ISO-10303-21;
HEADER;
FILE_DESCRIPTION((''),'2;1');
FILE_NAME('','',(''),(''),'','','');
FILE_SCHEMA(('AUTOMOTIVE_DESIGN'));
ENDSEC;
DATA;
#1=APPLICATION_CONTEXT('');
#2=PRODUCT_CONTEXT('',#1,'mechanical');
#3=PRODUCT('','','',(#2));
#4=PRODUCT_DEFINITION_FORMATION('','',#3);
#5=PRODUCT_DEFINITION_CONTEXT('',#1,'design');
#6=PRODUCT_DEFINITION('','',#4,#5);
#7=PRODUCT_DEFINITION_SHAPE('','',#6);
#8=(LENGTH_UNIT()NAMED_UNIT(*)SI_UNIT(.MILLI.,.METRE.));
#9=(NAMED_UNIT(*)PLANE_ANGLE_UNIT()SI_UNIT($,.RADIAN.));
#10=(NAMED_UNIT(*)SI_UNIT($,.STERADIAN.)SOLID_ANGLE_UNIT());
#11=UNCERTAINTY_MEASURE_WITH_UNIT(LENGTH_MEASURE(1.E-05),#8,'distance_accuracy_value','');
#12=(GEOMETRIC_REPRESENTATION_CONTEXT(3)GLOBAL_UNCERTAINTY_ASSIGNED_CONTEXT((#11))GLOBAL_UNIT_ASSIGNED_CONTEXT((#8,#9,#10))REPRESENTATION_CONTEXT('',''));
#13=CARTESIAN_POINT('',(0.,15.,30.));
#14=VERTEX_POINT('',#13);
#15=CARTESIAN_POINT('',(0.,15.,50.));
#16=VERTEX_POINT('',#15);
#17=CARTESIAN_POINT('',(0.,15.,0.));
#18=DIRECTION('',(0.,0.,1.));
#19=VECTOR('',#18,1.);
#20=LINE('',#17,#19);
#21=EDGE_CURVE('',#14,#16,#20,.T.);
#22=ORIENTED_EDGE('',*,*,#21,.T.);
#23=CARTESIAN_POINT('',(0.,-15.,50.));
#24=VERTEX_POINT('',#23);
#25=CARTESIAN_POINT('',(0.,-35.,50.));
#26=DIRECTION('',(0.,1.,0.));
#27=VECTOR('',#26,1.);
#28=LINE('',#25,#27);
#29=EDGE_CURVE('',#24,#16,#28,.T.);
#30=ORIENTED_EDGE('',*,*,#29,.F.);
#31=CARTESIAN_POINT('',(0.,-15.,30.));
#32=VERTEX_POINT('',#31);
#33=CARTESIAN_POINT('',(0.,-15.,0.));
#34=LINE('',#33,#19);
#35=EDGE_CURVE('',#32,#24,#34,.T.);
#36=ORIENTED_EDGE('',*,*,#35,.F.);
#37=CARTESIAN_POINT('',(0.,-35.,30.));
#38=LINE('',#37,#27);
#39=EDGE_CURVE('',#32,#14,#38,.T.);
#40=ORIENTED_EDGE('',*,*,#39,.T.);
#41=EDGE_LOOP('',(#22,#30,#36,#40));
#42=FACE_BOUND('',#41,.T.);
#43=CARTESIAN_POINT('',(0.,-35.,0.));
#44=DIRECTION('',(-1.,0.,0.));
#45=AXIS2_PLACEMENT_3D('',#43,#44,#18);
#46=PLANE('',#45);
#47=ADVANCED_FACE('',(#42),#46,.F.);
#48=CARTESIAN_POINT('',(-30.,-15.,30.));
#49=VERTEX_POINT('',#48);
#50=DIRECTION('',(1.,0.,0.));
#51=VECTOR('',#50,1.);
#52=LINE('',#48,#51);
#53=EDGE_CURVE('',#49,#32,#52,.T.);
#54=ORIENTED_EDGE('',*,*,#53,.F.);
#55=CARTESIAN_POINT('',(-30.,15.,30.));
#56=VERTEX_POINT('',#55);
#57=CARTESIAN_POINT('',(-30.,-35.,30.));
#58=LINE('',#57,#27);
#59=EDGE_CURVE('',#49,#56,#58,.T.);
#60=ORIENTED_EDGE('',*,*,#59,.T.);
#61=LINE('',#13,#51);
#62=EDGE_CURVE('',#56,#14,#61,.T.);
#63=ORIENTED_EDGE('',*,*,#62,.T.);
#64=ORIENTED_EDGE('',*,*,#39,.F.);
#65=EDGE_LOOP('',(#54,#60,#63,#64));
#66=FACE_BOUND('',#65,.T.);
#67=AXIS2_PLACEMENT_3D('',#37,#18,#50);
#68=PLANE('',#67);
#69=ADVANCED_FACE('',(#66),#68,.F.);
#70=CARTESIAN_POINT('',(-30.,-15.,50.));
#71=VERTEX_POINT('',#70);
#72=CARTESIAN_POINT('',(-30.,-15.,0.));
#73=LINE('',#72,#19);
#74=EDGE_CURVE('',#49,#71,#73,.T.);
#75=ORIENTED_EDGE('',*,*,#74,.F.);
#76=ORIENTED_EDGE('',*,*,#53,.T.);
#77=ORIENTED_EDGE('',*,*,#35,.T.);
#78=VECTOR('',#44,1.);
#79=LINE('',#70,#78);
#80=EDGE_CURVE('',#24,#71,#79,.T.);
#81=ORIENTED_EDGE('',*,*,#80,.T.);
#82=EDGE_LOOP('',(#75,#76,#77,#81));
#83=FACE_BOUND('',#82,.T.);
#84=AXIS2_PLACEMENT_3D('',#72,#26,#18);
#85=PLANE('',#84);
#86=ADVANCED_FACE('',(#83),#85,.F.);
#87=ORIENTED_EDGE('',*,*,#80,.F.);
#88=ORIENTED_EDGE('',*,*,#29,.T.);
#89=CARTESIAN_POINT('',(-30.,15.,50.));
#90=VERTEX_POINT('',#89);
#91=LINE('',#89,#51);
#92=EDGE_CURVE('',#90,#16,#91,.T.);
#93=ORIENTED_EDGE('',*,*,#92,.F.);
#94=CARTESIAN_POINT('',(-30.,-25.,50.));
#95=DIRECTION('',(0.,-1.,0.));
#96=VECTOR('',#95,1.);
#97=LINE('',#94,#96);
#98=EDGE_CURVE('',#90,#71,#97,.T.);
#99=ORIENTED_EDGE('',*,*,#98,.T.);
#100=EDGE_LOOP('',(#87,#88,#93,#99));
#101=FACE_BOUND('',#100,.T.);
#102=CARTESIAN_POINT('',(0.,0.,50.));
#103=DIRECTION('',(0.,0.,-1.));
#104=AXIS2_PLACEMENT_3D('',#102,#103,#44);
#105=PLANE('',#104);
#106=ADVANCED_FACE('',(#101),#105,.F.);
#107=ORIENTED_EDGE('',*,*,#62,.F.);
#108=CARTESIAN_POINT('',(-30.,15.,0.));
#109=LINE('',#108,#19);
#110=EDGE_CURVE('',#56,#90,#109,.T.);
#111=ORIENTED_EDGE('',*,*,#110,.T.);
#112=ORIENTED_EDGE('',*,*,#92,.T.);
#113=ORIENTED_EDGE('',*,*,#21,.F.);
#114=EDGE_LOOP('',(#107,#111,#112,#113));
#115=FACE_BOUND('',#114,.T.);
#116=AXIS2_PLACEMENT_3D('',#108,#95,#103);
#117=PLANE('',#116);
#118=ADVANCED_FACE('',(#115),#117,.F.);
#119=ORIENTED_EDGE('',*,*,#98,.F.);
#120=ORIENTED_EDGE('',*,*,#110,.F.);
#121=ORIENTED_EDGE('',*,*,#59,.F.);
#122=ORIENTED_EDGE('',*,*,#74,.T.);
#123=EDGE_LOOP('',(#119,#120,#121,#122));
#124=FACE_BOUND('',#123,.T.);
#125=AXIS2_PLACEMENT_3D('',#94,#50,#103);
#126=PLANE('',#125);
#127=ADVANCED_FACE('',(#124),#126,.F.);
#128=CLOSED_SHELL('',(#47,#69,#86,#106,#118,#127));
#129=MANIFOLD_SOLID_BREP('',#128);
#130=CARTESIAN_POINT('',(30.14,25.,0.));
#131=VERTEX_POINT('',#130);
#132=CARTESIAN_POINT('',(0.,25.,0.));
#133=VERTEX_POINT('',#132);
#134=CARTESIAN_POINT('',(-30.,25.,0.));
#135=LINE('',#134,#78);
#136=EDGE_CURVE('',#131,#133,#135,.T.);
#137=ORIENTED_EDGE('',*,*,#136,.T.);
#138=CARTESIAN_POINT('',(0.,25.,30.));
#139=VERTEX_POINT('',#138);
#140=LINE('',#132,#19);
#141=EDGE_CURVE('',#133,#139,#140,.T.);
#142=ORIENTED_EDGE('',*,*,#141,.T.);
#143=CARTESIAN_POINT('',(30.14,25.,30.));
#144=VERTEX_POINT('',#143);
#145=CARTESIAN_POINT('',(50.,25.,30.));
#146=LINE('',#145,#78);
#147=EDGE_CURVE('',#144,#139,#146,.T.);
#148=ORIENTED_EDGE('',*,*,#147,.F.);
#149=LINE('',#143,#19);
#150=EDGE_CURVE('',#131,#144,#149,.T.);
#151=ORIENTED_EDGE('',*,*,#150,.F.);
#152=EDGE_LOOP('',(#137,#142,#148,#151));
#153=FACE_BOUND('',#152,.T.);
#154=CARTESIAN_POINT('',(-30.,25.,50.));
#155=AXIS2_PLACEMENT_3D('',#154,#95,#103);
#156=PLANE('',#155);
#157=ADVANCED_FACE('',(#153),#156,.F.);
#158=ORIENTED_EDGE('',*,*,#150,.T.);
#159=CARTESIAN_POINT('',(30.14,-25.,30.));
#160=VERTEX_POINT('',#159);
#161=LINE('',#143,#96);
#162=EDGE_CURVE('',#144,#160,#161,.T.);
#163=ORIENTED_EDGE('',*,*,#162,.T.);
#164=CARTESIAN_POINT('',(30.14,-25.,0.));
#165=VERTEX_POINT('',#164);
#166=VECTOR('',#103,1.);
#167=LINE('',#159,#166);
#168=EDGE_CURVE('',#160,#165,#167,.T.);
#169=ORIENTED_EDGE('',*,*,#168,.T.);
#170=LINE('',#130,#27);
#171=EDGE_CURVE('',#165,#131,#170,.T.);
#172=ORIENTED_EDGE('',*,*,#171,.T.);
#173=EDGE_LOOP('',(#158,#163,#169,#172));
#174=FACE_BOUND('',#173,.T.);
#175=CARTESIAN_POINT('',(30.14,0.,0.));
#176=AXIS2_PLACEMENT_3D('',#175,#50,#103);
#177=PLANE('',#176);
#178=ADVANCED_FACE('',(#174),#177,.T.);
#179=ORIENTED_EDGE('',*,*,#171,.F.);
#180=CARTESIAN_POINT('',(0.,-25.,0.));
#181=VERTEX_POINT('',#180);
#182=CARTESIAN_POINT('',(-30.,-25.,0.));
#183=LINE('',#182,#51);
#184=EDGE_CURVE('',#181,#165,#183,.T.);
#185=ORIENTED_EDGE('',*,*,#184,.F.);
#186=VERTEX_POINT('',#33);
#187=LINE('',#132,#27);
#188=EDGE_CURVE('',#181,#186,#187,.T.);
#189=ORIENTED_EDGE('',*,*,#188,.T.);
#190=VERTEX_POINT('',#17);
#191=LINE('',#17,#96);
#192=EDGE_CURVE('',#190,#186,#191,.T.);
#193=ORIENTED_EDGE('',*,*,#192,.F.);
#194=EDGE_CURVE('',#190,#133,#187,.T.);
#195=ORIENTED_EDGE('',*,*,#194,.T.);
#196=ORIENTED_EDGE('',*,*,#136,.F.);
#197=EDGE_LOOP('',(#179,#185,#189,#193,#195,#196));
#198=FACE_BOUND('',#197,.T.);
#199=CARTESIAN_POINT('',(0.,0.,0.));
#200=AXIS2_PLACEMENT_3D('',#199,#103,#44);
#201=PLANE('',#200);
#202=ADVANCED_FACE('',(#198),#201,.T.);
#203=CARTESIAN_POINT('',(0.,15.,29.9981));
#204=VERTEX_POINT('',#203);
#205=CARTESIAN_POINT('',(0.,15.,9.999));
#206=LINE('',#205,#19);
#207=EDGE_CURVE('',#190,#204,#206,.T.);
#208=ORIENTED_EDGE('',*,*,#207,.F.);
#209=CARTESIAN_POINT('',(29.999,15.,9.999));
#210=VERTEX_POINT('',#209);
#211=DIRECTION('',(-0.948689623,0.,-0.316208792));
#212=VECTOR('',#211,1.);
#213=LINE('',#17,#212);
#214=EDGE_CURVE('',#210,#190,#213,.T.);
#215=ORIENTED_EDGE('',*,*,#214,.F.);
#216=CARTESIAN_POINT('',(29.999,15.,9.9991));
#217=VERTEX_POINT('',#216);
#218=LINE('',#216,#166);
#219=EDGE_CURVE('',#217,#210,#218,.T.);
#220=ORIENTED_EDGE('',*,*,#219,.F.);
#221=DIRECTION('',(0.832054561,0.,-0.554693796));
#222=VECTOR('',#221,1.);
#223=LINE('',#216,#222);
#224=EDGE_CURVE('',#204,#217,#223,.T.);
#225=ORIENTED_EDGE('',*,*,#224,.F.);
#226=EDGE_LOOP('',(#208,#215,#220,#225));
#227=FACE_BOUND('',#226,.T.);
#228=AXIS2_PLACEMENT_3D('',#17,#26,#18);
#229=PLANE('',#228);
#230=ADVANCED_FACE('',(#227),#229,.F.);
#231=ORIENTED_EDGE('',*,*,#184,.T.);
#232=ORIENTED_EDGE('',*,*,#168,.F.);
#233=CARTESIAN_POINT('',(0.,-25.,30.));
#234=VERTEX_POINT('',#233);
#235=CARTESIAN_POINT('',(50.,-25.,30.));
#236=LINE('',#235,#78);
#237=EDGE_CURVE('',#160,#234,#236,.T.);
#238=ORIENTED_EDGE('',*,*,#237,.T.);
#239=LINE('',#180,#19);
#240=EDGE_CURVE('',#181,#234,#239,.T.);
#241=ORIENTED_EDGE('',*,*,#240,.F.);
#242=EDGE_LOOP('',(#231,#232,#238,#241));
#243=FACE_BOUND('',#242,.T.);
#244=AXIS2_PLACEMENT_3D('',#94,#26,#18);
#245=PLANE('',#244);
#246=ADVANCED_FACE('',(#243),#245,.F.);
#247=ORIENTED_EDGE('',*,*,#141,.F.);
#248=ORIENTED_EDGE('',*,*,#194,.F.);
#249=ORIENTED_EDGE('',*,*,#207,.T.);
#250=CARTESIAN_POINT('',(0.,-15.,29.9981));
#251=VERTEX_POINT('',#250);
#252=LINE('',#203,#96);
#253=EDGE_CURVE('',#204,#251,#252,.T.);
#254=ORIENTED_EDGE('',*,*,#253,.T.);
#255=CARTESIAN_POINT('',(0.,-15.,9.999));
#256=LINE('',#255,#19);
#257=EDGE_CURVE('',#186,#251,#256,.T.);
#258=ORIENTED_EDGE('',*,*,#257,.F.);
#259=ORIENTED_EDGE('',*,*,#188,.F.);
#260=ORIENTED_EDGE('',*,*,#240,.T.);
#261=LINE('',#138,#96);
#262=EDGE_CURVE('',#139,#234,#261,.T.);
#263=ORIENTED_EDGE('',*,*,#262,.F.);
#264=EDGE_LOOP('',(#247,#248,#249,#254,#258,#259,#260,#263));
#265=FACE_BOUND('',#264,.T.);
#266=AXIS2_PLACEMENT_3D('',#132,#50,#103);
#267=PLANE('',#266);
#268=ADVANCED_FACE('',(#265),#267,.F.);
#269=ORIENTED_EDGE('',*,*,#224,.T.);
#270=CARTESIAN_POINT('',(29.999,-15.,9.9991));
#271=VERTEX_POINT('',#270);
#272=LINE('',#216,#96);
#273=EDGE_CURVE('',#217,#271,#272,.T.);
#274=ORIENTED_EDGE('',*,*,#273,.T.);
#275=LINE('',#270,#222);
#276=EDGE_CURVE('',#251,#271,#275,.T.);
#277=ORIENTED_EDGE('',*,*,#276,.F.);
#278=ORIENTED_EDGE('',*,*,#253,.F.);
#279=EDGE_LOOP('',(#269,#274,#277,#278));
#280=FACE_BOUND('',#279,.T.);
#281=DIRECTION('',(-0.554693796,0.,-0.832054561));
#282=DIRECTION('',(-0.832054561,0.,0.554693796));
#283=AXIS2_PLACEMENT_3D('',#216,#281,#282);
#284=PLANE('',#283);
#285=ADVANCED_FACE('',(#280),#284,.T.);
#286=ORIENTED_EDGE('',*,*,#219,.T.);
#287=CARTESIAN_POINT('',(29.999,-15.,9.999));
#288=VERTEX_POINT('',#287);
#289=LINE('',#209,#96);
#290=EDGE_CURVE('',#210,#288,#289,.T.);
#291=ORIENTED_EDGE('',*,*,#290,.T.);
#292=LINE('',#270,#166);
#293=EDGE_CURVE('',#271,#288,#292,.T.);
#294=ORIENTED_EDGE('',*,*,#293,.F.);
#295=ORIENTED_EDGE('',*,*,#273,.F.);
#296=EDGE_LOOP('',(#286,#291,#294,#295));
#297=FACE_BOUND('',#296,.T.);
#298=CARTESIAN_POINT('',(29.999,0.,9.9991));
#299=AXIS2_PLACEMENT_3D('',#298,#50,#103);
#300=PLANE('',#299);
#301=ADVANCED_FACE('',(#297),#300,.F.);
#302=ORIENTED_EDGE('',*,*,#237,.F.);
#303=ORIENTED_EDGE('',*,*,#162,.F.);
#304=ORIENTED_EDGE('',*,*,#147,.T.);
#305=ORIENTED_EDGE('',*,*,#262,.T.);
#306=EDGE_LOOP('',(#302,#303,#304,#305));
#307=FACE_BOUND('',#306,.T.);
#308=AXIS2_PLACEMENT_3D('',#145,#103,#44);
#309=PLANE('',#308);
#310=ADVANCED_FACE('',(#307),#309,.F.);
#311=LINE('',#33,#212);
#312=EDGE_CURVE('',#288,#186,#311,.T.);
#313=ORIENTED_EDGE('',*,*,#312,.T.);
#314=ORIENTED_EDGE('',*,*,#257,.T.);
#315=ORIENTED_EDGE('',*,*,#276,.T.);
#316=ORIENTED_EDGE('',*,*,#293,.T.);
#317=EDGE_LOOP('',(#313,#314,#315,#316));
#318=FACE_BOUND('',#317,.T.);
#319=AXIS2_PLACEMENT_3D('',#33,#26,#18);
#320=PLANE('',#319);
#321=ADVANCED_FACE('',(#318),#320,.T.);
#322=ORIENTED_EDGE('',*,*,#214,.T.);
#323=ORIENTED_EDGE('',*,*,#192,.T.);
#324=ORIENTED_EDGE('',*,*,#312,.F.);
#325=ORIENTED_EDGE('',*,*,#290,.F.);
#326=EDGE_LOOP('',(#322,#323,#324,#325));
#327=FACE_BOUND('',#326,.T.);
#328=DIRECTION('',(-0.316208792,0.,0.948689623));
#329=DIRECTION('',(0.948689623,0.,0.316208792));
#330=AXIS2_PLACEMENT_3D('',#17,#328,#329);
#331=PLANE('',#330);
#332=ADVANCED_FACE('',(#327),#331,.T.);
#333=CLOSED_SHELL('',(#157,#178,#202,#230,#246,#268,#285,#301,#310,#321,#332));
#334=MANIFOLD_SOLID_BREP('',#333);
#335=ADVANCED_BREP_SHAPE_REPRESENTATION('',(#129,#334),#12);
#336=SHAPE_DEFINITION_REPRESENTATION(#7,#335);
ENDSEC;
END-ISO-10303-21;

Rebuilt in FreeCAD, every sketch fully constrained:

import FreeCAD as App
import Part
import Sketcher
from FreeCAD import Vector
Q = App.Units.Quantity


def add_polygon(sketch, points):
    """Adds a closed chain of lines whose ends are joined by coincident constraints."""
    first, n = sketch.GeometryCount, len(points)
    for a, b in zip(points, points[1:] + points[:1]):
        sketch.addGeometry(Part.LineSegment(App.Vector(*a, 0), App.Vector(*b, 0)), False)
    for i in range(n):
        sketch.addConstraint(Sketcher.Constraint("Coincident", first + i, 2, first + (i + 1) % n, 1))

doc = App.newDocument("Part")
params = doc.addObject("Spreadsheet::Sheet", "Params")
for row, (alias, value) in enumerate([
    ("sketch1_width", "60 mm"),
    ("sketch1_height", "50 mm"),
    ("pad1_length", "50 mm"),
    ("sketch2_width", "30 mm"),
    ("sketch2_height", "10 mm"),
    ("pocket1_length", "50 mm"),
    ("sketch3_width", "10 mm"),
    ("sketch3_height", "20 mm"),
    ("pocket2_length", "50 mm"),
    ("sketch4_width", "30 mm"),
    ("sketch4_height", "20 mm"),
    ("pocket3_length", "50 mm"),
    ("pocket4_length", "30 mm"),
    ("pocket5_length", "30 mm"),
    ("sketch7_height", "30 mm"),
    ("pocket6_length", "0.0001 mm"),
    ("sketch8_width", "50 mm"),
    ("sketch8_height", "30 mm"),
    ("pad2_length", "0.14 mm"),
], start=1):
    params.set(f"A{row}", alias)
    params.set(f"B{row}", "=" + value)
    params.setAlias(f"B{row}", alias)

body = doc.addObject("PartDesign::Body", "Body")
body.AllowCompound = True

sketch1 = body.newObject("Sketcher::SketchObject", "Sketch")
sketch1.AttachmentSupport = (doc.getObject("XY_Plane"), [""])
sketch1.MapMode = "FlatFace"
add_polygon(sketch1, [(-30, 25), (-30, -25), (30, -25), (30, 25)])
sketch1.addConstraint([
    Sketcher.Constraint("Vertical", 0),
    Sketcher.Constraint("Horizontal", 1),
    Sketcher.Constraint("Vertical", 2),
    Sketcher.Constraint("Horizontal", 3),
    Sketcher.Constraint("Symmetric", 0, 2, 2, 2, -1, 1),
    Sketcher.Constraint("DistanceX", 1, 1, 1, 2, Q("60 mm")),
    Sketcher.Constraint("DistanceY", 0, 2, 0, 1, Q("50 mm")),
])
sketch1.setExpression("Constraints[9]", "Params.sketch1_width")
sketch1.setExpression("Constraints[10]", "Params.sketch1_height")
pad1 = body.newObject("PartDesign::Pad", "Pad")
pad1.Profile = sketch1
pad1.setExpression("Length", "Params.pad1_length")

sketch2 = body.newObject("Sketcher::SketchObject", "Sketch001")
sketch2.AttachmentSupport = (doc.getObject("XY_Plane"), [""])
sketch2.MapMode = "FlatFace"
sketch2.AttachmentOffset = App.Placement(Vector(0, 0, 50), App.Rotation())
add_polygon(sketch2, [(-30, 25), (-30, 15), (0, 15), (0, 25)])
add_polygon(sketch2, [(-30, -15), (-30, -25), (0, -25), (0, -15)])
sketch2.addConstraint([
    Sketcher.Constraint("Vertical", 0),
    Sketcher.Constraint("Horizontal", 1),
    Sketcher.Constraint("Vertical", 2),
    Sketcher.Constraint("Horizontal", 3),
    Sketcher.Constraint("Vertical", 4),
    Sketcher.Constraint("Horizontal", 5),
    Sketcher.Constraint("Vertical", 6),
    Sketcher.Constraint("Horizontal", 7),
    Sketcher.Constraint("Symmetric", 2, 2, 5, 2, -1, 1),
    Sketcher.Constraint("Symmetric", 1, 2, 6, 2, -1),
    Sketcher.Constraint("Vertical", 3, 2, 4, 2),
    Sketcher.Constraint("DistanceX", 1, 1, 1, 2, Q("30 mm")),
    Sketcher.Constraint("DistanceY", 0, 2, 0, 1, Q("10 mm")),
    Sketcher.Constraint("DistanceY", -1, 1, 0, 2, Q("15 mm")),
])
sketch2.setExpression("Constraints[19]", "Params.sketch2_width")
sketch2.setExpression("Constraints[20]", "Params.sketch2_height")
pocket1 = body.newObject("PartDesign::Pocket", "Pocket")
pocket1.Profile = sketch2
pocket1.setExpression("Length", "Params.pocket1_length")

sketch3 = body.newObject("Sketcher::SketchObject", "Sketch002")
sketch3.AttachmentSupport = (doc.getObject("YZ_Plane"), [""])
sketch3.MapMode = "FlatFace"
add_polygon(sketch3, [(25, 30), (15, 30), (15, 50), (25, 50)])
add_polygon(sketch3, [(-15, 30), (-25, 30), (-25, 50), (-15, 50)])
sketch3.addConstraint([
    Sketcher.Constraint("Horizontal", 0),
    Sketcher.Constraint("Vertical", 1),
    Sketcher.Constraint("Horizontal", 2),
    Sketcher.Constraint("Vertical", 3),
    Sketcher.Constraint("Horizontal", 4),
    Sketcher.Constraint("Vertical", 5),
    Sketcher.Constraint("Horizontal", 6),
    Sketcher.Constraint("Vertical", 7),
    Sketcher.Constraint("Symmetric", 3, 2, 4, 2, -2),
    Sketcher.Constraint("Symmetric", 1, 2, 6, 2, -2),
    Sketcher.Constraint("DistanceX", 0, 2, 0, 1, Q("10 mm")),
    Sketcher.Constraint("DistanceY", 1, 1, 1, 2, Q("20 mm")),
    Sketcher.Constraint("DistanceX", -1, 1, 0, 2, Q("15 mm")),
    Sketcher.Constraint("DistanceY", -1, 1, 0, 2, Q("30 mm")),
])
sketch3.setExpression("Constraints[18]", "Params.sketch3_width")
sketch3.setExpression("Constraints[19]", "Params.sketch3_height")
pocket2 = body.newObject("PartDesign::Pocket", "Pocket001")
pocket2.Profile = sketch3
pocket2.setExpression("Length", "Params.pocket2_length")
pocket2.Reversed = True

sketch4 = body.newObject("Sketcher::SketchObject", "Sketch003")
sketch4.AttachmentSupport = (doc.getObject("XZ_Plane"), [""])
sketch4.MapMode = "FlatFace"
sketch4.AttachmentOffset = App.Placement(Vector(0, 0, -15), App.Rotation())
add_polygon(sketch4, [(-30, 0), (-30, 30), (0, 30), (0, 0)])
add_polygon(sketch4, [(0, 30), (0, 50), (30, 50), (30, 30)])
sketch4.addConstraint([
    Sketcher.Constraint("Vertical", 0),
    Sketcher.Constraint("Horizontal", 1),
    Sketcher.Constraint("Vertical", 2),
    Sketcher.Constraint("Horizontal", 3),
    Sketcher.Constraint("Vertical", 4),
    Sketcher.Constraint("Horizontal", 5),
    Sketcher.Constraint("Vertical", 6),
    Sketcher.Constraint("Horizontal", 7),
    Sketcher.Constraint("Coincident", 2, 2, -1, 1),
    Sketcher.Constraint("Coincident", 7, 2, 1, 2),
    Sketcher.Constraint("Equal", 3, 5),
    Sketcher.Constraint("Equal", 7, 0),
    Sketcher.Constraint("DistanceX", 1, 1, 1, 2, Q("30 mm")),
    Sketcher.Constraint("DistanceY", 4, 1, 4, 2, Q("20 mm")),
])
sketch4.setExpression("Constraints[20]", "Params.sketch4_width")
sketch4.setExpression("Constraints[21]", "Params.sketch4_height")
pocket3 = body.newObject("PartDesign::Pocket", "Pocket002")
pocket3.Profile = sketch4
pocket3.setExpression("Length", "Params.pocket3_length")
pocket3.Reversed = True

sketch5 = body.newObject("Sketcher::SketchObject", "Sketch004")
sketch5.AttachmentSupport = (doc.getObject("XZ_Plane"), [""])
sketch5.MapMode = "FlatFace"
sketch5.AttachmentOffset = App.Placement(Vector(0, 0, 15), App.Rotation())
add_polygon(sketch5, [(29.999, 9.999), (0, 0), (0, 9.999)])
sketch5.addConstraint([
    Sketcher.Constraint("Vertical", 1),
    Sketcher.Constraint("Horizontal", 2),
    Sketcher.Constraint("Coincident", 0, 2, -1, 1),
    Sketcher.Constraint("DistanceX", 2, 1, 2, 2, Q("29.999 mm")),
    Sketcher.Constraint("DistanceY", 1, 1, 1, 2, Q("9.999 mm")),
])
pocket4 = body.newObject("PartDesign::Pocket", "Pocket003")
pocket4.Profile = sketch5
pocket4.setExpression("Length", "Params.pocket4_length")

sketch6 = body.newObject("Sketcher::SketchObject", "Sketch005")
sketch6.AttachmentSupport = (doc.getObject("XZ_Plane"), [""])
sketch6.MapMode = "FlatFace"
sketch6.AttachmentOffset = App.Placement(Vector(0, 0, 15), App.Rotation())
add_polygon(sketch6, [(0, 9.9991), (0, 29.9981), (29.999, 9.9991)])
sketch6.addConstraint([
    Sketcher.Constraint("Vertical", 0),
    Sketcher.Constraint("Horizontal", 2),
    Sketcher.Constraint("PointOnObject", 0, 2, -2),
    Sketcher.Constraint("DistanceX", 2, 2, 2, 1, Q("29.999 mm")),
    Sketcher.Constraint("DistanceY", 0, 1, 0, 2, Q("19.999 mm")),
    Sketcher.Constraint("DistanceY", -1, 1, 0, 2, Q("29.9981 mm")),
])
pocket5 = body.newObject("PartDesign::Pocket", "Pocket004")
pocket5.Profile = sketch6
pocket5.setExpression("Length", "Params.pocket5_length")

sketch7 = body.newObject("Sketcher::SketchObject", "Sketch006")
sketch7.AttachmentSupport = (doc.getObject("XY_Plane"), [""])
sketch7.MapMode = "FlatFace"
sketch7.AttachmentOffset = App.Placement(Vector(0, 0, 9.999), App.Rotation())
add_polygon(sketch7, [(29.999, 15), (29.999, -15), (0, -15), (0, 15)])
sketch7.addConstraint([
    Sketcher.Constraint("Vertical", 0),
    Sketcher.Constraint("Horizontal", 1),
    Sketcher.Constraint("Vertical", 2),
    Sketcher.Constraint("Horizontal", 3),
    Sketcher.Constraint("Symmetric", 1, 2, 2, 2, -1, 1),
    Sketcher.Constraint("DistanceY", 0, 2, 0, 1, Q("30 mm")),
    Sketcher.Constraint("DistanceX", 1, 2, 1, 1, Q("29.999 mm")),
])
sketch7.setExpression("Constraints[9]", "Params.sketch7_height")
pocket6 = body.newObject("PartDesign::Pocket", "Pocket005")
pocket6.Profile = sketch7
pocket6.setExpression("Length", "Params.pocket6_length")
pocket6.Reversed = True

sketch8 = body.newObject("Sketcher::SketchObject", "Sketch007")
sketch8.AttachmentSupport = (doc.getObject("YZ_Plane"), [""])
sketch8.MapMode = "FlatFace"
sketch8.AttachmentOffset = App.Placement(Vector(0, 0, 30), App.Rotation())
add_polygon(sketch8, [(25, 30), (-25, 30), (-25, 0), (25, 0)])
sketch8.addConstraint([
    Sketcher.Constraint("Horizontal", 0),
    Sketcher.Constraint("Vertical", 1),
    Sketcher.Constraint("Horizontal", 2),
    Sketcher.Constraint("Vertical", 3),
    Sketcher.Constraint("Symmetric", 1, 2, 2, 2, -1, 1),
    Sketcher.Constraint("DistanceX", 0, 2, 0, 1, Q("50 mm")),
    Sketcher.Constraint("DistanceY", 1, 2, 1, 1, Q("30 mm")),
])
sketch8.setExpression("Constraints[9]", "Params.sketch8_width")
sketch8.setExpression("Constraints[10]", "Params.sketch8_height")
pad2 = body.newObject("PartDesign::Pad", "Pad001")
pad2.Profile = sketch8
pad2.setExpression("Length", "Params.pad2_length")

doc.recompute()
